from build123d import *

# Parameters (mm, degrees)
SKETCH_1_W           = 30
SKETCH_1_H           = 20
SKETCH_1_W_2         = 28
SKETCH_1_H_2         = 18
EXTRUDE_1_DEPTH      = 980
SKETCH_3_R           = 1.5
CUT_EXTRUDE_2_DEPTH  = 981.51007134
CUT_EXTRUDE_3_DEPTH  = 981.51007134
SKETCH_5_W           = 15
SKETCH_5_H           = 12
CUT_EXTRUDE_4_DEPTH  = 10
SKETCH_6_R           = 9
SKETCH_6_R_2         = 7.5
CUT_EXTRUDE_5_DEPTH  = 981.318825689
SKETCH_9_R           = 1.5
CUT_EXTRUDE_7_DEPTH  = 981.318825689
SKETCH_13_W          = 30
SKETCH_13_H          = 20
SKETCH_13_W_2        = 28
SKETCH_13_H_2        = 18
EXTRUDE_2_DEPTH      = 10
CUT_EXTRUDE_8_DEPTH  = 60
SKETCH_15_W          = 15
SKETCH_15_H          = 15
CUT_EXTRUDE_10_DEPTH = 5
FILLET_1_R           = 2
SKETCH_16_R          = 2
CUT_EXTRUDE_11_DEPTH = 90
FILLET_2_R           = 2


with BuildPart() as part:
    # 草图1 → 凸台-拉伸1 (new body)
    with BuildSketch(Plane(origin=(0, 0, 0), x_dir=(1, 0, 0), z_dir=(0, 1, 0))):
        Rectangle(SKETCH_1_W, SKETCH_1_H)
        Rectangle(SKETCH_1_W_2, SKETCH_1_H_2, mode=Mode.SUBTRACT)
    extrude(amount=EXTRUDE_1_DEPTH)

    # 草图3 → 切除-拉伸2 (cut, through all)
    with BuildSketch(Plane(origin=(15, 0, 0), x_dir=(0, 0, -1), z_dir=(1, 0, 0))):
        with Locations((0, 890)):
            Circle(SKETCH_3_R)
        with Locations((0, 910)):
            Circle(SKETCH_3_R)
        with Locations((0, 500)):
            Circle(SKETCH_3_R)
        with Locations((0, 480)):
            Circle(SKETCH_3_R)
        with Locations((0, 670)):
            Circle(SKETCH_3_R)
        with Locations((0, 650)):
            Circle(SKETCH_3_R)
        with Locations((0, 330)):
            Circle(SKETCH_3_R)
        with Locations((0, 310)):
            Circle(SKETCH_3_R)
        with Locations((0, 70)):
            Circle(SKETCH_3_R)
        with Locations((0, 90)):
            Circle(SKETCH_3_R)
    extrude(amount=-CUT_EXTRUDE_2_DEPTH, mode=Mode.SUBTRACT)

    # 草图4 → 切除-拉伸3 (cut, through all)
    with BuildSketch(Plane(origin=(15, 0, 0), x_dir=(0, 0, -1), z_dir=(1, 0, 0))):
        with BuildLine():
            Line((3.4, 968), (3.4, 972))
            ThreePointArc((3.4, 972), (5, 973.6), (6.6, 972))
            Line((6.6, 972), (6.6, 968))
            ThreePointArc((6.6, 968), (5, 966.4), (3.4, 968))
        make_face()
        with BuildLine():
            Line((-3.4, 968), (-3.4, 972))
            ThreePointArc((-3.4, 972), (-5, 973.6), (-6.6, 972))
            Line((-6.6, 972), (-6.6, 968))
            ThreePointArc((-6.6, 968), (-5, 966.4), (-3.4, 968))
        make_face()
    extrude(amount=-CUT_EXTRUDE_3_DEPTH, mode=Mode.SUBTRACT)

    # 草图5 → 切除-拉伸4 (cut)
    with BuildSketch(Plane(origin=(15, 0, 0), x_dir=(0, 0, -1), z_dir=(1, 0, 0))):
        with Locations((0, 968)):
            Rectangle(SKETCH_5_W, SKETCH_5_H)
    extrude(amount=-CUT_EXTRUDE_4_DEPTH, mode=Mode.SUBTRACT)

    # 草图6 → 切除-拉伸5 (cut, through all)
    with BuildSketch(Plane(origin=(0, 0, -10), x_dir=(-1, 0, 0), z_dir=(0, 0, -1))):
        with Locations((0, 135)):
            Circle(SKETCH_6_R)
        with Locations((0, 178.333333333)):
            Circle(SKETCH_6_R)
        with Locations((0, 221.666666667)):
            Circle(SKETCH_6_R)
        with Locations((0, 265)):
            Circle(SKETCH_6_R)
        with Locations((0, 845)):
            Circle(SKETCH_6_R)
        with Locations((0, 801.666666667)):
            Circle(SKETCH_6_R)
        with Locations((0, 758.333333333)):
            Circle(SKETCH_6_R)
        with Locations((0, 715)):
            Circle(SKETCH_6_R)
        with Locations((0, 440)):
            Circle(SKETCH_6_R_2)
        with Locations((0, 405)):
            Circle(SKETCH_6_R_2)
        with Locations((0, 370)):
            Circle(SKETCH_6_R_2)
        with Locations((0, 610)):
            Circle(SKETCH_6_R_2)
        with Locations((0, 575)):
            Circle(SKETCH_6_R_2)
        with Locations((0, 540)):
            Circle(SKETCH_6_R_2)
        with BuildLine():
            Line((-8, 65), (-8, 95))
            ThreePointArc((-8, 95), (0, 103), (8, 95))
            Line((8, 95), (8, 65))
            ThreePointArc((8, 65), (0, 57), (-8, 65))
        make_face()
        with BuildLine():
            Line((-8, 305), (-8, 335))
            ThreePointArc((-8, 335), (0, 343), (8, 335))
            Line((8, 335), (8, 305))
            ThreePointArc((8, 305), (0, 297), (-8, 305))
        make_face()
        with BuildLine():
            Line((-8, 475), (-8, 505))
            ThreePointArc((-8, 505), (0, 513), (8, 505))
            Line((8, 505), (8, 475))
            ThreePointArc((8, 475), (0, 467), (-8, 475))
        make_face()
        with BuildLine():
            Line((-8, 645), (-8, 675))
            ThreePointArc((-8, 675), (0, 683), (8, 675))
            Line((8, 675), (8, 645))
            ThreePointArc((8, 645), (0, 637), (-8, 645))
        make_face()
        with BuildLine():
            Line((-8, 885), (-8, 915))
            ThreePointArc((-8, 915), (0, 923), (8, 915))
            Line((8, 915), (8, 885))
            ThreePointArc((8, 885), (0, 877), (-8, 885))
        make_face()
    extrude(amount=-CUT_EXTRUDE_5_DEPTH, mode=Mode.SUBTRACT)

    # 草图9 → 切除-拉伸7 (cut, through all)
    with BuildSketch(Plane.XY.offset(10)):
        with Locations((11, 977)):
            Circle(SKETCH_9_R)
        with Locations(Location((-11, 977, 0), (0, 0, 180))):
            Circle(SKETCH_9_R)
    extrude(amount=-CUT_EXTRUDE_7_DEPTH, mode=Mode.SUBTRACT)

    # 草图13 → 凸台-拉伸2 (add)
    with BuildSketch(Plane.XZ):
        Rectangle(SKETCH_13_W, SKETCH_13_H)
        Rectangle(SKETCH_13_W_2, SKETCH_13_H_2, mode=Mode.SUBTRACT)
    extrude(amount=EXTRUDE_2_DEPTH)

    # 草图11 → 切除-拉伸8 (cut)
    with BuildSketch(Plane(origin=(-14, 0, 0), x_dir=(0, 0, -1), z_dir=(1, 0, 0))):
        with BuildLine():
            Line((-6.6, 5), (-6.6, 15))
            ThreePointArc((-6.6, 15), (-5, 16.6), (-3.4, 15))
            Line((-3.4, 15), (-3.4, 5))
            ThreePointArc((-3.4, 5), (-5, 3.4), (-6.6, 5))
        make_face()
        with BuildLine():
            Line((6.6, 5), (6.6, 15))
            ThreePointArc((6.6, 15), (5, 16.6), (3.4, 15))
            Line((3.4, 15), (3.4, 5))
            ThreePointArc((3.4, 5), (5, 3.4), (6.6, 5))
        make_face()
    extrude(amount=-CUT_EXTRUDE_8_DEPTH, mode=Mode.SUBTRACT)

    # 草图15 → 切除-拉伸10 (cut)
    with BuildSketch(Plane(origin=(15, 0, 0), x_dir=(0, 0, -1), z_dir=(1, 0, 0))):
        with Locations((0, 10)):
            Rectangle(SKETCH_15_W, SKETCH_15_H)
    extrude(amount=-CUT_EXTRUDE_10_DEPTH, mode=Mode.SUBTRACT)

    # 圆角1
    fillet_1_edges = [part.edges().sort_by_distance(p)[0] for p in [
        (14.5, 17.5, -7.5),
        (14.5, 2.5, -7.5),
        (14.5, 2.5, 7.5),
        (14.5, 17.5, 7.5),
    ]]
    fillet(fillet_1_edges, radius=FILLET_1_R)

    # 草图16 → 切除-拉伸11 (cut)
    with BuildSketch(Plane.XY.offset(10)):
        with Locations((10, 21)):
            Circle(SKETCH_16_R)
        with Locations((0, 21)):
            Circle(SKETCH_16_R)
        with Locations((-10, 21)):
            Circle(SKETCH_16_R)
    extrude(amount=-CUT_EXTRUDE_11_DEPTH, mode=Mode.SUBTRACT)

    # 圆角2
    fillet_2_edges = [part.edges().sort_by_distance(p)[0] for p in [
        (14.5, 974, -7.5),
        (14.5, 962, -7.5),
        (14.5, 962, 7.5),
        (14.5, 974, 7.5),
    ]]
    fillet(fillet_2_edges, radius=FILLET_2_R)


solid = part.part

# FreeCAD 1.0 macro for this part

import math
import FreeCAD as App
import Part
import Sketcher
from FreeCAD import Vector


def edges_at(feature, points):
    """Names of the edges that pass closest to the given points."""
    edges = feature.Shape.Edges
    near = lambda p: min(range(len(edges)), key=lambda i: edges[i].distToShape(Part.Vertex(*p))[0])
    return sorted({f"Edge{near(p) + 1}" for p in points})


def add_polygon(sketch, points):
    """Adds a closed chain of lines whose ends are joined by coincident constraints."""
    first, n = sketch.GeometryCount, len(points)
    for a, b in zip(points, points[1:] + points[:1]):
        sketch.addGeometry(Part.LineSegment(App.Vector(*a, 0), App.Vector(*b, 0)), False)
    for i in range(n):
        sketch.addConstraint(Sketcher.Constraint("Coincident", first + i, 2, first + (i + 1) % n, 1))

doc = App.newDocument("Part")
body = doc.addObject("PartDesign::Body", "Body")

# Sketch on XZ plane
sketch1 = body.newObject("Sketcher::SketchObject", "Sketch")
sketch1.AttachmentSupport = (doc.getObject("XZ_Plane"), [""])
sketch1.MapMode = "FlatFace"
add_polygon(sketch1, [(-15, -10), (-15, 10), (15, 10), (15, -10)])  # lines 0-3
add_polygon(sketch1, [(14, 9), (-14, 9), (-14, -9), (14, -9)])  # lines 4-7
sketch1.addConstraint(Sketcher.Constraint("Vertical", 0))
sketch1.addConstraint(Sketcher.Constraint("Horizontal", 1))
sketch1.addConstraint(Sketcher.Constraint("Vertical", 2))
sketch1.addConstraint(Sketcher.Constraint("Horizontal", 3))
sketch1.addConstraint(Sketcher.Constraint("Horizontal", 4))
sketch1.addConstraint(Sketcher.Constraint("Vertical", 5))
sketch1.addConstraint(Sketcher.Constraint("Horizontal", 6))
sketch1.addConstraint(Sketcher.Constraint("Vertical", 7))
sketch1.addConstraint(Sketcher.Constraint("Symmetric", 0, 2, 2, 2, -1, 1))
sketch1.addConstraint(Sketcher.Constraint("Symmetric", 4, 2, 6, 2, -1, 1))
sketch1.addConstraint(Sketcher.Constraint("DistanceX", 1, 1, 1, 2, 30.0))
sketch1.addConstraint(Sketcher.Constraint("DistanceX", 4, 2, 4, 1, 28.0))
sketch1.addConstraint(Sketcher.Constraint("DistanceY", 0, 1, 0, 2, 20.0))
sketch1.addConstraint(Sketcher.Constraint("DistanceY", 5, 2, 5, 1, 18.0))
pad1 = body.newObject("PartDesign::Pad", "Pad")
pad1.Profile = sketch1
pad1.Length = 980
pad1.Reversed = True

# Sketch on YZ plane
sketch2 = body.newObject("Sketcher::SketchObject", "Sketch001")
sketch2.AttachmentSupport = (doc.getObject("YZ_Plane"), [""])
sketch2.MapMode = "FlatFace"
sketch2.AttachmentOffset = App.Placement(Vector(0, 0, 15), App.Rotation())
sketch2.addGeometry(Part.Circle(Vector(890, 0, 0), Vector(0, 0, 1), 1.5), False)
sketch2.addGeometry(Part.Circle(Vector(910, 0, 0), Vector(0, 0, 1), 1.5), False)
sketch2.addGeometry(Part.Circle(Vector(500, 0, 0), Vector(0, 0, 1), 1.5), False)
sketch2.addGeometry(Part.Circle(Vector(480, 0, 0), Vector(0, 0, 1), 1.5), False)
sketch2.addGeometry(Part.Circle(Vector(670, 0, 0), Vector(0, 0, 1), 1.5), False)
sketch2.addGeometry(Part.Circle(Vector(650, 0, 0), Vector(0, 0, 1), 1.5), False)
sketch2.addGeometry(Part.Circle(Vector(330, 0, 0), Vector(0, 0, 1), 1.5), False)
sketch2.addGeometry(Part.Circle(Vector(310, 0, 0), Vector(0, 0, 1), 1.5), False)
sketch2.addGeometry(Part.Circle(Vector(70, 0, 0), Vector(0, 0, 1), 1.5), False)
sketch2.addGeometry(Part.Circle(Vector(90, 0, 0), Vector(0, 0, 1), 1.5), False)
sketch2.addConstraint(Sketcher.Constraint("Equal", 0, 1))
sketch2.addConstraint(Sketcher.Constraint("Equal", 1, 2))
sketch2.addConstraint(Sketcher.Constraint("Equal", 2, 3))
sketch2.addConstraint(Sketcher.Constraint("Equal", 3, 4))
sketch2.addConstraint(Sketcher.Constraint("Equal", 4, 5))
sketch2.addConstraint(Sketcher.Constraint("Equal", 5, 6))
sketch2.addConstraint(Sketcher.Constraint("Equal", 6, 7))
sketch2.addConstraint(Sketcher.Constraint("Equal", 7, 8))
sketch2.addConstraint(Sketcher.Constraint("Equal", 8, 9))
sketch2.addConstraint(Sketcher.Constraint("PointOnObject", 0, 3, -1))
sketch2.addConstraint(Sketcher.Constraint("PointOnObject", 1, 3, -1))
sketch2.addConstraint(Sketcher.Constraint("PointOnObject", 2, 3, -1))
sketch2.addConstraint(Sketcher.Constraint("PointOnObject", 3, 3, -1))
sketch2.addConstraint(Sketcher.Constraint("PointOnObject", 4, 3, -1))
sketch2.addConstraint(Sketcher.Constraint("PointOnObject", 5, 3, -1))
sketch2.addConstraint(Sketcher.Constraint("PointOnObject", 6, 3, -1))
sketch2.addConstraint(Sketcher.Constraint("PointOnObject", 7, 3, -1))
sketch2.addConstraint(Sketcher.Constraint("PointOnObject", 8, 3, -1))
sketch2.addConstraint(Sketcher.Constraint("PointOnObject", 9, 3, -1))
sketch2.addConstraint(Sketcher.Constraint("Diameter", 0, 3.0))
sketch2.addConstraint(Sketcher.Constraint("DistanceX", -1, 1, 0, 3, 890.0))
sketch2.addConstraint(Sketcher.Constraint("DistanceX", -1, 1, 1, 3, 910.0))
sketch2.addConstraint(Sketcher.Constraint("DistanceX", -1, 1, 2, 3, 500.0))
sketch2.addConstraint(Sketcher.Constraint("DistanceX", -1, 1, 3, 3, 480.0))
sketch2.addConstraint(Sketcher.Constraint("DistanceX", -1, 1, 4, 3, 670.0))
sketch2.addConstraint(Sketcher.Constraint("DistanceX", -1, 1, 5, 3, 650.0))
sketch2.addConstraint(Sketcher.Constraint("DistanceX", -1, 1, 6, 3, 330.0))
sketch2.addConstraint(Sketcher.Constraint("DistanceX", -1, 1, 7, 3, 310.0))
sketch2.addConstraint(Sketcher.Constraint("DistanceX", -1, 1, 8, 3, 70.0))
sketch2.addConstraint(Sketcher.Constraint("DistanceX", -1, 1, 9, 3, 90.0))
pocket1 = body.newObject("PartDesign::Pocket", "Pocket")
pocket1.Profile = sketch2
pocket1.Type = "ThroughAll"

# Sketch on YZ plane
sketch3 = body.newObject("Sketcher::SketchObject", "Sketch002")
sketch3.AttachmentSupport = (doc.getObject("YZ_Plane"), [""])
sketch3.MapMode = "FlatFace"
sketch3.AttachmentOffset = App.Placement(Vector(0, 0, 15), App.Rotation())
sketch3.addGeometry(Part.LineSegment(Vector(972, -3.4, 0), Vector(968, -3.4, 0)), False)
sketch3.addGeometry(Part.ArcOfCircle(Part.Circle(Vector(968, -5, 0), Vector(0, 0, 1), 1.6), math.radians(90), math.radians(270)), False)
sketch3.addGeometry(Part.LineSegment(Vector(968, -6.6, 0), Vector(972, -6.6, 0)), False)
sketch3.addGeometry(Part.ArcOfCircle(Part.Circle(Vector(972, -5, 0), Vector(0, 0, 1), 1.6), math.radians(-90), math.radians(90)), False)
sketch3.addGeometry(Part.LineSegment(Vector(968, 3.4, 0), Vector(972, 3.4, 0)), False)
sketch3.addGeometry(Part.ArcOfCircle(Part.Circle(Vector(972, 5, 0), Vector(0, 0, 1), 1.6), math.radians(-90), math.radians(90)), False)
sketch3.addGeometry(Part.LineSegment(Vector(972, 6.6, 0), Vector(968, 6.6, 0)), False)
sketch3.addGeometry(Part.ArcOfCircle(Part.Circle(Vector(968, 5, 0), Vector(0, 0, 1), 1.6), math.radians(90), math.radians(270)), False)
sketch3.addConstraint(Sketcher.Constraint("Tangent", 0, 2, 1, 1))
sketch3.addConstraint(Sketcher.Constraint("Tangent", 1, 2, 2, 1))
sketch3.addConstraint(Sketcher.Constraint("Tangent", 2, 2, 3, 1))
sketch3.addConstraint(Sketcher.Constraint("Tangent", 3, 2, 0, 1))
sketch3.addConstraint(Sketcher.Constraint("Tangent", 4, 2, 5, 1))
sketch3.addConstraint(Sketcher.Constraint("Tangent", 5, 2, 6, 1))
sketch3.addConstraint(Sketcher.Constraint("Tangent", 6, 2, 7, 1))
sketch3.addConstraint(Sketcher.Constraint("Tangent", 7, 2, 4, 1))
sketch3.addConstraint(Sketcher.Constraint("Horizontal", 0))
sketch3.addConstraint(Sketcher.Constraint("Horizontal", 2))
sketch3.addConstraint(Sketcher.Constraint("Horizontal", 4))
sketch3.addConstraint(Sketcher.Constraint("Horizontal", 6))
sketch3.addConstraint(Sketcher.Constraint("Equal", 3, 5))
sketch3.addConstraint(Sketcher.Constraint("Symmetric", 3, 3, 5, 3, -1))
sketch3.addConstraint(Sketcher.Constraint("Vertical", 1, 3, 7, 3))
sketch3.addConstraint(Sketcher.Constraint("Radius", 1, 1.6))
sketch3.addConstraint(Sketcher.Constraint("DistanceX", 0, 2, 0, 1, 4.0))
sketch3.addConstraint(Sketcher.Constraint("DistanceX", -1, 1, 1, 3, 968.0))
sketch3.addConstraint(Sketcher.Constraint("DistanceY", 1, 3, -1, 1, 5.0))
pocket2 = body.newObject("PartDesign::Pocket", "Pocket001")
pocket2.Profile = sketch3
pocket2.Type = "ThroughAll"

# Sketch on YZ plane
sketch4 = body.newObject("Sketcher::SketchObject", "Sketch003")
sketch4.AttachmentSupport = (doc.getObject("YZ_Plane"), [""])
sketch4.MapMode = "FlatFace"
sketch4.AttachmentOffset = App.Placement(Vector(0, 0, 15), App.Rotation())
add_polygon(sketch4, [(974, 7.5), (962, 7.5), (962, -7.5), (974, -7.5)])  # lines 0-3
sketch4.addConstraint(Sketcher.Constraint("Horizontal", 0))
sketch4.addConstraint(Sketcher.Constraint("Vertical", 1))
sketch4.addConstraint(Sketcher.Constraint("Horizontal", 2))
sketch4.addConstraint(Sketcher.Constraint("Vertical", 3))
sketch4.addConstraint(Sketcher.Constraint("DistanceX", 0, 2, 0, 1, 12.0))
sketch4.addConstraint(Sketcher.Constraint("DistanceY", 1, 2, 1, 1, 15.0))
sketch4.addConstraint(Sketcher.Constraint("DistanceX", -1, 1, 0, 2, 962.0))
sketch4.addConstraint(Sketcher.Constraint("DistanceY", -1, 1, 0, 2, 7.5))
pocket3 = body.newObject("PartDesign::Pocket", "Pocket002")
pocket3.Profile = sketch4
pocket3.Length = 10

# Sketch on XY plane
sketch5 = body.newObject("Sketcher::SketchObject", "Sketch004")
sketch5.AttachmentSupport = (doc.getObject("XY_Plane"), [""])
sketch5.MapMode = "FlatFace"
sketch5.AttachmentOffset = App.Placement(Vector(0, 0, -10), App.Rotation())
sketch5.addGeometry(Part.Circle(Vector(0, 135, 0), Vector(0, 0, 1), 9), False)
sketch5.addGeometry(Part.Circle(Vector(0, 178.333333, 0), Vector(0, 0, 1), 9), False)
sketch5.addGeometry(Part.Circle(Vector(0, 221.666667, 0), Vector(0, 0, 1), 9), False)
sketch5.addGeometry(Part.Circle(Vector(0, 265, 0), Vector(0, 0, 1), 9), False)
sketch5.addGeometry(Part.Circle(Vector(0, 845, 0), Vector(0, 0, 1), 9), False)
sketch5.addGeometry(Part.Circle(Vector(0, 801.666667, 0), Vector(0, 0, 1), 9), False)
sketch5.addGeometry(Part.Circle(Vector(0, 758.333333, 0), Vector(0, 0, 1), 9), False)
sketch5.addGeometry(Part.Circle(Vector(0, 715, 0), Vector(0, 0, 1), 9), False)
sketch5.addGeometry(Part.Circle(Vector(0, 440, 0), Vector(0, 0, 1), 7.5), False)
sketch5.addGeometry(Part.Circle(Vector(0, 405, 0), Vector(0, 0, 1), 7.5), False)
sketch5.addGeometry(Part.Circle(Vector(0, 370, 0), Vector(0, 0, 1), 7.5), False)
sketch5.addGeometry(Part.Circle(Vector(0, 610, 0), Vector(0, 0, 1), 7.5), False)
sketch5.addGeometry(Part.Circle(Vector(0, 575, 0), Vector(0, 0, 1), 7.5), False)
sketch5.addGeometry(Part.Circle(Vector(0, 540, 0), Vector(0, 0, 1), 7.5), False)
sketch5.addGeometry(Part.LineSegment(Vector(8, 95, 0), Vector(8, 65, 0)), False)
sketch5.addGeometry(Part.ArcOfCircle(Part.Circle(Vector(0, 65, 0), Vector(0, 0, 1), 8), math.radians(180), math.radians(360)), False)
sketch5.addGeometry(Part.LineSegment(Vector(-8, 65, 0), Vector(-8, 95, 0)), False)
sketch5.addGeometry(Part.ArcOfCircle(Part.Circle(Vector(0, 95, 0), Vector(0, 0, 1), 8), math.radians(0), math.radians(180)), False)
sketch5.addGeometry(Part.LineSegment(Vector(8, 335, 0), Vector(8, 305, 0)), False)
sketch5.addGeometry(Part.ArcOfCircle(Part.Circle(Vector(0, 305, 0), Vector(0, 0, 1), 8), math.radians(180), math.radians(360)), False)
sketch5.addGeometry(Part.LineSegment(Vector(-8, 305, 0), Vector(-8, 335, 0)), False)
sketch5.addGeometry(Part.ArcOfCircle(Part.Circle(Vector(0, 335, 0), Vector(0, 0, 1), 8), math.radians(0), math.radians(180)), False)
sketch5.addGeometry(Part.LineSegment(Vector(8, 505, 0), Vector(8, 475, 0)), False)
sketch5.addGeometry(Part.ArcOfCircle(Part.Circle(Vector(0, 475, 0), Vector(0, 0, 1), 8), math.radians(180), math.radians(360)), False)
sketch5.addGeometry(Part.LineSegment(Vector(-8, 475, 0), Vector(-8, 505, 0)), False)
sketch5.addGeometry(Part.ArcOfCircle(Part.Circle(Vector(0, 505, 0), Vector(0, 0, 1), 8), math.radians(0), math.radians(180)), False)
sketch5.addGeometry(Part.LineSegment(Vector(8, 675, 0), Vector(8, 645, 0)), False)
sketch5.addGeometry(Part.ArcOfCircle(Part.Circle(Vector(0, 645, 0), Vector(0, 0, 1), 8), math.radians(180), math.radians(360)), False)
sketch5.addGeometry(Part.LineSegment(Vector(-8, 645, 0), Vector(-8, 675, 0)), False)
sketch5.addGeometry(Part.ArcOfCircle(Part.Circle(Vector(0, 675, 0), Vector(0, 0, 1), 8), math.radians(0), math.radians(180)), False)
sketch5.addGeometry(Part.LineSegment(Vector(8, 915, 0), Vector(8, 885, 0)), False)
sketch5.addGeometry(Part.ArcOfCircle(Part.Circle(Vector(0, 885, 0), Vector(0, 0, 1), 8), math.radians(180), math.radians(360)), False)
sketch5.addGeometry(Part.LineSegment(Vector(-8, 885, 0), Vector(-8, 915, 0)), False)
sketch5.addGeometry(Part.ArcOfCircle(Part.Circle(Vector(0, 915, 0), Vector(0, 0, 1), 8), math.radians(0), math.radians(180)), False)
sketch5.addConstraint(Sketcher.Constraint("Tangent", 14, 2, 15, 2))
sketch5.addConstraint(Sketcher.Constraint("Tangent", 15, 1, 16, 1))
sketch5.addConstraint(Sketcher.Constraint("Tangent", 16, 2, 17, 2))
sketch5.addConstraint(Sketcher.Constraint("Tangent", 17, 1, 14, 1))
sketch5.addConstraint(Sketcher.Constraint("Tangent", 18, 2, 19, 2))
sketch5.addConstraint(Sketcher.Constraint("Tangent", 19, 1, 20, 1))
sketch5.addConstraint(Sketcher.Constraint("Tangent", 20, 2, 21, 2))
sketch5.addConstraint(Sketcher.Constraint("Tangent", 21, 1, 18, 1))
sketch5.addConstraint(Sketcher.Constraint("Tangent", 22, 2, 23, 2))
sketch5.addConstraint(Sketcher.Constraint("Tangent", 23, 1, 24, 1))
sketch5.addConstraint(Sketcher.Constraint("Tangent", 24, 2, 25, 2))
sketch5.addConstraint(Sketcher.Constraint("Tangent", 25, 1, 22, 1))
sketch5.addConstraint(Sketcher.Constraint("Tangent", 26, 2, 27, 2))
sketch5.addConstraint(Sketcher.Constraint("Tangent", 27, 1, 28, 1))
sketch5.addConstraint(Sketcher.Constraint("Tangent", 28, 2, 29, 2))
sketch5.addConstraint(Sketcher.Constraint("Tangent", 29, 1, 26, 1))
sketch5.addConstraint(Sketcher.Constraint("Tangent", 30, 2, 31, 2))
sketch5.addConstraint(Sketcher.Constraint("Tangent", 31, 1, 32, 1))
sketch5.addConstraint(Sketcher.Constraint("Tangent", 32, 2, 33, 2))
sketch5.addConstraint(Sketcher.Constraint("Tangent", 33, 1, 30, 1))
sketch5.addConstraint(Sketcher.Constraint("Vertical", 14))
sketch5.addConstraint(Sketcher.Constraint("Vertical", 16))
sketch5.addConstraint(Sketcher.Constraint("Vertical", 18))
sketch5.addConstraint(Sketcher.Constraint("Vertical", 20))
sketch5.addConstraint(Sketcher.Constraint("Vertical", 22))
sketch5.addConstraint(Sketcher.Constraint("Vertical", 24))
sketch5.addConstraint(Sketcher.Constraint("Vertical", 26))
sketch5.addConstraint(Sketcher.Constraint("Vertical", 28))
sketch5.addConstraint(Sketcher.Constraint("Vertical", 30))
sketch5.addConstraint(Sketcher.Constraint("Vertical", 32))
sketch5.addConstraint(Sketcher.Constraint("Equal", 0, 1))
sketch5.addConstraint(Sketcher.Constraint("Equal", 1, 2))
sketch5.addConstraint(Sketcher.Constraint("Equal", 2, 3))
sketch5.addConstraint(Sketcher.Constraint("Equal", 3, 4))
sketch5.addConstraint(Sketcher.Constraint("Equal", 4, 5))
sketch5.addConstraint(Sketcher.Constraint("Equal", 5, 6))
sketch5.addConstraint(Sketcher.Constraint("Equal", 6, 7))
sketch5.addConstraint(Sketcher.Constraint("Equal", 8, 9))
sketch5.addConstraint(Sketcher.Constraint("Equal", 9, 10))
sketch5.addConstraint(Sketcher.Constraint("Equal", 10, 11))
sketch5.addConstraint(Sketcher.Constraint("Equal", 11, 12))
sketch5.addConstraint(Sketcher.Constraint("Equal", 12, 13))
sketch5.addConstraint(Sketcher.Constraint("Equal", 17, 19))
sketch5.addConstraint(Sketcher.Constraint("Equal", 21, 23))
sketch5.addConstraint(Sketcher.Constraint("Equal", 25, 27))
sketch5.addConstraint(Sketcher.Constraint("Equal", 29, 31))
sketch5.addConstraint(Sketcher.Constraint("PointOnObject", 0, 3, -2))
sketch5.addConstraint(Sketcher.Constraint("PointOnObject", 1, 3, -2))
sketch5.addConstraint(Sketcher.Constraint("PointOnObject", 2, 3, -2))
sketch5.addConstraint(Sketcher.Constraint("PointOnObject", 3, 3, -2))
sketch5.addConstraint(Sketcher.Constraint("PointOnObject", 4, 3, -2))
sketch5.addConstraint(Sketcher.Constraint("PointOnObject", 5, 3, -2))
sketch5.addConstraint(Sketcher.Constraint("PointOnObject", 6, 3, -2))
sketch5.addConstraint(Sketcher.Constraint("PointOnObject", 7, 3, -2))
sketch5.addConstraint(Sketcher.Constraint("PointOnObject", 8, 3, -2))
sketch5.addConstraint(Sketcher.Constraint("PointOnObject", 9, 3, -2))
sketch5.addConstraint(Sketcher.Constraint("PointOnObject", 10, 3, -2))
sketch5.addConstraint(Sketcher.Constraint("PointOnObject", 11, 3, -2))
sketch5.addConstraint(Sketcher.Constraint("PointOnObject", 12, 3, -2))
sketch5.addConstraint(Sketcher.Constraint("PointOnObject", 13, 3, -2))
sketch5.addConstraint(Sketcher.Constraint("PointOnObject", 15, 3, -2))
sketch5.addConstraint(Sketcher.Constraint("PointOnObject", 19, 3, -2))
sketch5.addConstraint(Sketcher.Constraint("PointOnObject", 23, 3, -2))
sketch5.addConstraint(Sketcher.Constraint("PointOnObject", 27, 3, -2))
sketch5.addConstraint(Sketcher.Constraint("PointOnObject", 31, 3, -2))
sketch5.addConstraint(Sketcher.Constraint("Equal", 16, 18))
sketch5.addConstraint(Sketcher.Constraint("Equal", 20, 22))
sketch5.addConstraint(Sketcher.Constraint("Equal", 24, 26))
sketch5.addConstraint(Sketcher.Constraint("Equal", 28, 30))
sketch5.addConstraint(Sketcher.Constraint("Diameter", 0, 18.0))
sketch5.addConstraint(Sketcher.Constraint("Diameter", 8, 15.0))
sketch5.addConstraint(Sketcher.Constraint("Radius", 15, 8.0))
sketch5.addConstraint(Sketcher.Constraint("DistanceY", 14, 2, 14, 1, 30.0))
sketch5.addConstraint(Sketcher.Constraint("DistanceY", -1, 1, 0, 3, 135.0))
sketch5.addConstraint(Sketcher.Constraint("DistanceY", -1, 1, 3, 3, 265.0))
sketch5.addConstraint(Sketcher.Constraint("DistanceY", -1, 1, 4, 3, 845.0))
sketch5.addConstraint(Sketcher.Constraint("DistanceY", -1, 1, 7, 3, 715.0))
sketch5.addConstraint(Sketcher.Constraint("DistanceY", -1, 1, 8, 3, 440.0))
sketch5.addConstraint(Sketcher.Constraint("DistanceY", -1, 1, 9, 3, 405.0))
sketch5.addConstraint(Sketcher.Constraint("DistanceY", -1, 1, 10, 3, 370.0))
sketch5.addConstraint(Sketcher.Constraint("DistanceY", -1, 1, 11, 3, 610.0))
sketch5.addConstraint(Sketcher.Constraint("DistanceY", -1, 1, 12, 3, 575.0))
sketch5.addConstraint(Sketcher.Constraint("DistanceY", -1, 1, 13, 3, 540.0))
sketch5.addConstraint(Sketcher.Constraint("DistanceY", -1, 1, 15, 3, 65.0))
sketch5.addConstraint(Sketcher.Constraint("DistanceY", -1, 1, 19, 3, 305.0))
sketch5.addConstraint(Sketcher.Constraint("DistanceY", -1, 1, 23, 3, 475.0))
sketch5.addConstraint(Sketcher.Constraint("DistanceY", -1, 1, 27, 3, 645.0))
sketch5.addConstraint(Sketcher.Constraint("DistanceY", -1, 1, 31, 3, 885.0))
sketch5.addConstraint(Sketcher.Constraint("DistanceY", 2, 3, 5, 3, 580.0))
sketch5.addConstraint(Sketcher.Constraint("DistanceY", 1, 3, 6, 3, 580.0))
sketch5.addConstraint(Sketcher.Constraint("DistanceY", -1, 1, 1, 3, 178.333333))
sketch5.addConstraint(Sketcher.Constraint("DistanceY", -1, 1, 2, 3, 221.666667))
pocket4 = body.newObject("PartDesign::Pocket", "Pocket003")
pocket4.Profile = sketch5
pocket4.Type = "ThroughAll"
pocket4.Reversed = True

# Sketch on XY plane
sketch6 = body.newObject("Sketcher::SketchObject", "Sketch005")
sketch6.AttachmentSupport = (doc.getObject("XY_Plane"), [""])
sketch6.MapMode = "FlatFace"
sketch6.AttachmentOffset = App.Placement(Vector(0, 0, 10), App.Rotation())
sketch6.addGeometry(Part.Circle(Vector(11, 977, 0), Vector(0, 0, 1), 1.5), False)
sketch6.addGeometry(Part.Circle(Vector(-11, 977, 0), Vector(0, 0, 1), 1.5), False)
sketch6.addConstraint(Sketcher.Constraint("Equal", 0, 1))
sketch6.addConstraint(Sketcher.Constraint("Symmetric", 0, 3, 1, 3, -2))
sketch6.addConstraint(Sketcher.Constraint("Diameter", 0, 3.0))
sketch6.addConstraint(Sketcher.Constraint("DistanceX", -1, 1, 0, 3, 11.0))
sketch6.addConstraint(Sketcher.Constraint("DistanceY", -1, 1, 0, 3, 977.0))
pocket5 = body.newObject("PartDesign::Pocket", "Pocket004")
pocket5.Profile = sketch6
pocket5.Type = "ThroughAll"

# Sketch on XZ plane
sketch7 = body.newObject("Sketcher::SketchObject", "Sketch006")
sketch7.AttachmentSupport = (doc.getObject("XZ_Plane"), [""])
sketch7.MapMode = "FlatFace"
add_polygon(sketch7, [(-15, 10), (-15, -10), (15, -10), (15, 10)])  # lines 0-3
add_polygon(sketch7, [(14, -9), (-14, -9), (-14, 9), (14, 9)])  # lines 4-7
sketch7.addConstraint(Sketcher.Constraint("Vertical", 0))
sketch7.addConstraint(Sketcher.Constraint("Horizontal", 1))
sketch7.addConstraint(Sketcher.Constraint("Vertical", 2))
sketch7.addConstraint(Sketcher.Constraint("Horizontal", 3))
sketch7.addConstraint(Sketcher.Constraint("Horizontal", 4))
sketch7.addConstraint(Sketcher.Constraint("Vertical", 5))
sketch7.addConstraint(Sketcher.Constraint("Horizontal", 6))
sketch7.addConstraint(Sketcher.Constraint("Vertical", 7))
sketch7.addConstraint(Sketcher.Constraint("Symmetric", 0, 2, 2, 2, -1, 1))
sketch7.addConstraint(Sketcher.Constraint("Symmetric", 4, 2, 6, 2, -1, 1))
sketch7.addConstraint(Sketcher.Constraint("DistanceX", 1, 1, 1, 2, 30.0))
sketch7.addConstraint(Sketcher.Constraint("DistanceX", 4, 2, 4, 1, 28.0))
sketch7.addConstraint(Sketcher.Constraint("DistanceY", 0, 2, 0, 1, 20.0))
sketch7.addConstraint(Sketcher.Constraint("DistanceY", 5, 1, 5, 2, 18.0))
pad2 = body.newObject("PartDesign::Pad", "Pad001")
pad2.Profile = sketch7
pad2.Length = 10

# Sketch on YZ plane
sketch8 = body.newObject("Sketcher::SketchObject", "Sketch007")
sketch8.AttachmentSupport = (doc.getObject("YZ_Plane"), [""])
sketch8.MapMode = "FlatFace"
sketch8.AttachmentOffset = App.Placement(Vector(0, 0, -14), App.Rotation())
sketch8.addGeometry(Part.LineSegment(Vector(15, 6.6, 0), Vector(5, 6.6, 0)), False)
sketch8.addGeometry(Part.ArcOfCircle(Part.Circle(Vector(5, 5, 0), Vector(0, 0, 1), 1.6), math.radians(90), math.radians(270)), False)
sketch8.addGeometry(Part.LineSegment(Vector(5, 3.4, 0), Vector(15, 3.4, 0)), False)
sketch8.addGeometry(Part.ArcOfCircle(Part.Circle(Vector(15, 5, 0), Vector(0, 0, 1), 1.6), math.radians(-90), math.radians(90)), False)
sketch8.addGeometry(Part.LineSegment(Vector(5, -6.6, 0), Vector(15, -6.6, 0)), False)
sketch8.addGeometry(Part.ArcOfCircle(Part.Circle(Vector(15, -5, 0), Vector(0, 0, 1), 1.6), math.radians(-90), math.radians(90)), False)
sketch8.addGeometry(Part.LineSegment(Vector(15, -3.4, 0), Vector(5, -3.4, 0)), False)
sketch8.addGeometry(Part.ArcOfCircle(Part.Circle(Vector(5, -5, 0), Vector(0, 0, 1), 1.6), math.radians(90), math.radians(270)), False)
sketch8.addConstraint(Sketcher.Constraint("Tangent", 0, 2, 1, 1))
sketch8.addConstraint(Sketcher.Constraint("Tangent", 1, 2, 2, 1))
sketch8.addConstraint(Sketcher.Constraint("Tangent", 2, 2, 3, 1))
sketch8.addConstraint(Sketcher.Constraint("Tangent", 3, 2, 0, 1))
sketch8.addConstraint(Sketcher.Constraint("Tangent", 4, 2, 5, 1))
sketch8.addConstraint(Sketcher.Constraint("Tangent", 5, 2, 6, 1))
sketch8.addConstraint(Sketcher.Constraint("Tangent", 6, 2, 7, 1))
sketch8.addConstraint(Sketcher.Constraint("Tangent", 7, 2, 4, 1))
sketch8.addConstraint(Sketcher.Constraint("Horizontal", 0))
sketch8.addConstraint(Sketcher.Constraint("Horizontal", 2))
sketch8.addConstraint(Sketcher.Constraint("Horizontal", 4))
sketch8.addConstraint(Sketcher.Constraint("Horizontal", 6))
sketch8.addConstraint(Sketcher.Constraint("Equal", 3, 5))
sketch8.addConstraint(Sketcher.Constraint("Symmetric", 3, 3, 5, 3, -1))
sketch8.addConstraint(Sketcher.Constraint("Vertical", 1, 3, 7, 3))
sketch8.addConstraint(Sketcher.Constraint("Radius", 1, 1.6))
sketch8.addConstraint(Sketcher.Constraint("DistanceX", 0, 2, 0, 1, 10.0))
sketch8.addConstraint(Sketcher.Constraint("DistanceX", -1, 1, 1, 3, 5.0))
sketch8.addConstraint(Sketcher.Constraint("DistanceY", -1, 1, 1, 3, 5.0))
pocket6 = body.newObject("PartDesign::Pocket", "Pocket005")
pocket6.Profile = sketch8
pocket6.Length = 60

# Sketch on YZ plane
sketch9 = body.newObject("Sketcher::SketchObject", "Sketch008")
sketch9.AttachmentSupport = (doc.getObject("YZ_Plane"), [""])
sketch9.MapMode = "FlatFace"
sketch9.AttachmentOffset = App.Placement(Vector(0, 0, 15), App.Rotation())
add_polygon(sketch9, [(17.5, 7.5), (2.5, 7.5), (2.5, -7.5), (17.5, -7.5)])  # lines 0-3
sketch9.addConstraint(Sketcher.Constraint("Horizontal", 0))
sketch9.addConstraint(Sketcher.Constraint("Vertical", 1))
sketch9.addConstraint(Sketcher.Constraint("Horizontal", 2))
sketch9.addConstraint(Sketcher.Constraint("Vertical", 3))
sketch9.addConstraint(Sketcher.Constraint("Equal", 2, 1))
sketch9.addConstraint(Sketcher.Constraint("DistanceX", 0, 2, 0, 1, 15.0))
sketch9.addConstraint(Sketcher.Constraint("DistanceX", -1, 1, 0, 2, 2.5))
sketch9.addConstraint(Sketcher.Constraint("DistanceY", -1, 1, 0, 2, 7.5))
pocket7 = body.newObject("PartDesign::Pocket", "Pocket006")
pocket7.Profile = sketch9
pocket7.Length = 5
doc.recompute()

fillet = body.newObject("PartDesign::Fillet", "Fillet")
fillet.Base = (pocket7, edges_at(pocket7, [
    (14.5, 17.5, -7.5),
    (14.5, 2.5, -7.5),
    (14.5, 2.5, 7.5),
    (14.5, 17.5, 7.5),
]))
fillet.Radius = 2

# Sketch on XY plane
sketch10 = body.newObject("Sketcher::SketchObject", "Sketch009")
sketch10.AttachmentSupport = (doc.getObject("XY_Plane"), [""])
sketch10.MapMode = "FlatFace"
sketch10.AttachmentOffset = App.Placement(Vector(0, 0, 10), App.Rotation())
sketch10.addGeometry(Part.Circle(Vector(10, 21, 0), Vector(0, 0, 1), 2), False)
sketch10.addGeometry(Part.Circle(Vector(0, 21, 0), Vector(0, 0, 1), 2), False)
sketch10.addGeometry(Part.Circle(Vector(-10, 21, 0), Vector(0, 0, 1), 2), False)
sketch10.addConstraint(Sketcher.Constraint("Equal", 0, 1))
sketch10.addConstraint(Sketcher.Constraint("Equal", 1, 2))
sketch10.addConstraint(Sketcher.Constraint("Symmetric", 0, 3, 2, 3, -2))
sketch10.addConstraint(Sketcher.Constraint("PointOnObject", 1, 3, -2))
sketch10.addConstraint(Sketcher.Constraint("Horizontal", 0, 3, 1, 3))
sketch10.addConstraint(Sketcher.Constraint("Diameter", 0, 4.0))
sketch10.addConstraint(Sketcher.Constraint("DistanceX", -1, 1, 0, 3, 10.0))
sketch10.addConstraint(Sketcher.Constraint("DistanceY", -1, 1, 0, 3, 21.0))
pocket8 = body.newObject("PartDesign::Pocket", "Pocket007")
pocket8.Profile = sketch10
pocket8.Length = 90
doc.recompute()

fillet2 = body.newObject("PartDesign::Fillet", "Fillet001")
fillet2.Base = (pocket8, edges_at(pocket8, [
    (14.5, 974, -7.5),
    (14.5, 962, -7.5),
    (14.5, 962, 7.5),
    (14.5, 974, 7.5),
]))
fillet2.Radius = 2

doc.recompute()
